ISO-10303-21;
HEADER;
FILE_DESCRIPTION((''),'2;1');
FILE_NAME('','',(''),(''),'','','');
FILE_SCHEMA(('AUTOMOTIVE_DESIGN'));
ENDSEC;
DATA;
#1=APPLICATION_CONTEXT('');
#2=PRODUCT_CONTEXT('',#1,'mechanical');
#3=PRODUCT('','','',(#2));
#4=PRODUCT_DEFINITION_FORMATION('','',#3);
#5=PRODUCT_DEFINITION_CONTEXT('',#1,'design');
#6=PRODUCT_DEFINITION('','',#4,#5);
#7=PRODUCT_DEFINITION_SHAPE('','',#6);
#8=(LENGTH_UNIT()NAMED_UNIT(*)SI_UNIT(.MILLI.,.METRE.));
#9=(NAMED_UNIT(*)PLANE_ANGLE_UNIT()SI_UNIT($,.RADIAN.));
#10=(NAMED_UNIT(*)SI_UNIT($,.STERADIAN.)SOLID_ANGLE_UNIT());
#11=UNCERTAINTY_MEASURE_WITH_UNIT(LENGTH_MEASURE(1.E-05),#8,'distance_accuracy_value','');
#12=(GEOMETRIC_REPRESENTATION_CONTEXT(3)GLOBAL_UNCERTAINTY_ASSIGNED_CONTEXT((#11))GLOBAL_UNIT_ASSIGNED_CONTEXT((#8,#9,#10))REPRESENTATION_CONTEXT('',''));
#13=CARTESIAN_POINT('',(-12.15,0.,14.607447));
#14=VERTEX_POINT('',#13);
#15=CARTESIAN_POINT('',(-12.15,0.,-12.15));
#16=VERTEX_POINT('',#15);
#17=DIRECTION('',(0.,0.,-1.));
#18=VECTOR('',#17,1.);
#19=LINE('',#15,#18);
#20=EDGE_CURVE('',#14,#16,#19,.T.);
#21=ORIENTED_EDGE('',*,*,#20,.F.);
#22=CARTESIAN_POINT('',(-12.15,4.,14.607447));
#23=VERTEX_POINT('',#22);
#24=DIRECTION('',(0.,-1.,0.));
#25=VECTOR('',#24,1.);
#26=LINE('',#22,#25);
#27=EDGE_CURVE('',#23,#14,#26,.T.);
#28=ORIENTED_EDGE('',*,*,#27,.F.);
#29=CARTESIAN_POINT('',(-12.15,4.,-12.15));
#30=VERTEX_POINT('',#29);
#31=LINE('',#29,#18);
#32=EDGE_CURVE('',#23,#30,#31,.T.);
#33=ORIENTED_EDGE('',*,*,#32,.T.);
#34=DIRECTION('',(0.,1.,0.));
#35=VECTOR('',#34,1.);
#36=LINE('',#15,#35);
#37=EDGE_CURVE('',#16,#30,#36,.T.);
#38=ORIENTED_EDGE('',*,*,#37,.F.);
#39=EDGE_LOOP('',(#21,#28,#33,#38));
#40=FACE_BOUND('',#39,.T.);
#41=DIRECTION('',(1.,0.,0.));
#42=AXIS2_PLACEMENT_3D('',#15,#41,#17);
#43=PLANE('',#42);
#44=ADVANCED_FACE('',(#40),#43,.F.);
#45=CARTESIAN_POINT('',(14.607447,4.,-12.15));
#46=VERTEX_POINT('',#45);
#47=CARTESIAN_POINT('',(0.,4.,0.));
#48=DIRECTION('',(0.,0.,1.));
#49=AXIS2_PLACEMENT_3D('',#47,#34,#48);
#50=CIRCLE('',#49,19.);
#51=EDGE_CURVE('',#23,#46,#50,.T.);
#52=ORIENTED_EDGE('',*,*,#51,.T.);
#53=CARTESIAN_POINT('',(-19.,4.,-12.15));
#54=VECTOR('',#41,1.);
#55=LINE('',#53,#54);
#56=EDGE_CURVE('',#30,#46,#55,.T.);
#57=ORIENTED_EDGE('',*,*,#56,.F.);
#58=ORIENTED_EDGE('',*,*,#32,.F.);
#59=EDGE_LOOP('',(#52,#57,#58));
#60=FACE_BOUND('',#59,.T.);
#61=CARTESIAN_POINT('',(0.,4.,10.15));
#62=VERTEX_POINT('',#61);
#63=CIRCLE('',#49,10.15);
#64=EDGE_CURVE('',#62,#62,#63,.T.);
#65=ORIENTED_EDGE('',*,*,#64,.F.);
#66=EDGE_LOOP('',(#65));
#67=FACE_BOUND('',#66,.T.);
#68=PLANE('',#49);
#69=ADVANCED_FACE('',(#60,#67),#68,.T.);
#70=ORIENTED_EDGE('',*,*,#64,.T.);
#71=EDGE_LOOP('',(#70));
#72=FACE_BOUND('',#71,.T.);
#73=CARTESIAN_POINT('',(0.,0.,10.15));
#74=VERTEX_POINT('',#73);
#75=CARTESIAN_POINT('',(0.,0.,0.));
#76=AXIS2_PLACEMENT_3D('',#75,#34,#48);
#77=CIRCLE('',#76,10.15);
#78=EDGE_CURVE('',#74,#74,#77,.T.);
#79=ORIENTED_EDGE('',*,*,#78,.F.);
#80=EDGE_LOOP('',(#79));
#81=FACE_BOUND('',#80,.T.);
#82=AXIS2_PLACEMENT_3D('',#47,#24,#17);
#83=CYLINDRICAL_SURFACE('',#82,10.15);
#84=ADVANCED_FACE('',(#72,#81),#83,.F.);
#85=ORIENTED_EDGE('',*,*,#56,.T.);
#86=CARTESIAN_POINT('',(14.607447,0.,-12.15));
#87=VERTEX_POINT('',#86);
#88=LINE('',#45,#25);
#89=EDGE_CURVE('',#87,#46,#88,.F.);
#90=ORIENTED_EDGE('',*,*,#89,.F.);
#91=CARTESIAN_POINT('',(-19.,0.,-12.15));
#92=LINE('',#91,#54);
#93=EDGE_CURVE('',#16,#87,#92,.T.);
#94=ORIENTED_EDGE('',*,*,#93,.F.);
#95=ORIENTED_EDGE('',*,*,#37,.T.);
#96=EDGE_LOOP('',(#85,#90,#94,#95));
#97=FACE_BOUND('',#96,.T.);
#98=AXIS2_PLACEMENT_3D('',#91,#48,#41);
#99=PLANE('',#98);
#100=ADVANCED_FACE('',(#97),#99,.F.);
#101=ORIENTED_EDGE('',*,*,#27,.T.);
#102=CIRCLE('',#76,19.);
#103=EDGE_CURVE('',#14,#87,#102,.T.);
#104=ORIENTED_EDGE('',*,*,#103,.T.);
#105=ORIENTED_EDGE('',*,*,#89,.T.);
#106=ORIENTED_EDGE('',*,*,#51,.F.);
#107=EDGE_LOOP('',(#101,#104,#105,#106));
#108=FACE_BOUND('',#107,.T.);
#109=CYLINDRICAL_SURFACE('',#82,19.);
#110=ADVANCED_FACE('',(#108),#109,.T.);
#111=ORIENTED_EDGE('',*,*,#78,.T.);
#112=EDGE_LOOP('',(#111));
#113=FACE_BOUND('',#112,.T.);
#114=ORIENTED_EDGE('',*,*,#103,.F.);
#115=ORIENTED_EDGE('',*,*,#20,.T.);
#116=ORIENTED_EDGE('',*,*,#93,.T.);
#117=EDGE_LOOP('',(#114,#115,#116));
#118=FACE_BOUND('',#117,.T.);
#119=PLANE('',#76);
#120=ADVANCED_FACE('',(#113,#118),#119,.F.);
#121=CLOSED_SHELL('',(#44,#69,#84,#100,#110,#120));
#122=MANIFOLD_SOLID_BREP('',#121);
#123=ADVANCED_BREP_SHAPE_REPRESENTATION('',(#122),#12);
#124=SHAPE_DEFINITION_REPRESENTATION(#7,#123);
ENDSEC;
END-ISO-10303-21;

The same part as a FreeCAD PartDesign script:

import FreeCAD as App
import Part
import Sketcher

V = App.Vector


def add_polygon(sketch, points):
    """Adds a closed chain of lines whose ends are joined by coincident constraints."""
    first, n = sketch.GeometryCount, len(points)
    for a, b in zip(points, points[1:] + points[:1]):
        sketch.addGeometry(Part.LineSegment(App.Vector(*a, 0), App.Vector(*b, 0)), False)
    for i in range(n):
        sketch.addConstraint(Sketcher.Constraint("Coincident", first + i, 2, first + (i + 1) % n, 1))

doc = App.newDocument("Part")
params = doc.addObject("Spreadsheet::Sheet", "Params")
for row, (alias, value) in enumerate([
    ("sketch1_diameter", "38 mm"),
    ("sketch1_diameter2", "20.3 mm"),
    ("pad1_length", "4 mm"),
    ("sketch2_width", "38 mm"),
    ("sketch2_height", "10 mm"),
    ("sketch3_width", "10 mm"),
    ("sketch3_height", "31.15 mm"),
], start=1):
    params.set(f"A{row}", alias)
    params.set(f"B{row}", "=" + value)
    params.setAlias(f"B{row}", alias)

body = doc.addObject("PartDesign::Body", "Body")

# Sketch on XZ plane
sketch1 = body.newObject("Sketcher::SketchObject", "Sketch")
sketch1.AttachmentSupport = (doc.getObject("XZ_Plane"), [""])
sketch1.MapMode = "FlatFace"
sketch1.addGeometry(Part.Circle(V(0, 0, 0), V(0, 0, 1), 19), False)
sketch1.addGeometry(Part.Circle(V(0, 0, 0), V(0, 0, 1), 10.15), False)
sketch1.addConstraint(Sketcher.Constraint("Coincident", 0, 3, -1, 1))
sketch1.addConstraint(Sketcher.Constraint("Coincident", 1, 3, -1, 1))
sketch1.addConstraint(Sketcher.Constraint("Diameter", 0, 38.0))
sketch1.addConstraint(Sketcher.Constraint("Diameter", 1, 20.3))
sketch1.setExpression("Constraints[2]", "Params.sketch1_diameter")
sketch1.setExpression("Constraints[3]", "Params.sketch1_diameter2")
pad1 = body.newObject("PartDesign::Pad", "Pad")
pad1.Profile = sketch1
pad1.setExpression("Length", "Params.pad1_length")
pad1.Reversed = True

# Sketch on XZ plane
sketch2 = body.newObject("Sketcher::SketchObject", "Sketch001")
sketch2.AttachmentSupport = (doc.getObject("XZ_Plane"), [""])
sketch2.MapMode = "FlatFace"
sketch2.AttachmentOffset = App.Placement(V(0, 0, -4), App.Rotation())
add_polygon(sketch2, [(-19, -22.15), (-19, -12.15), (19, -12.15), (19, -22.15)])  # lines 0-3
sketch2.addConstraint(Sketcher.Constraint("Vertical", 0))
sketch2.addConstraint(Sketcher.Constraint("Horizontal", 1))
sketch2.addConstraint(Sketcher.Constraint("Vertical", 2))
sketch2.addConstraint(Sketcher.Constraint("Horizontal", 3))
sketch2.addConstraint(Sketcher.Constraint("DistanceX", 1, 1, 1, 2, 38.0))
sketch2.addConstraint(Sketcher.Constraint("DistanceY", 0, 1, 0, 2, 10.0))
sketch2.addConstraint(Sketcher.Constraint("DistanceX", 0, 2, -1, 1, 19.0))
sketch2.addConstraint(Sketcher.Constraint("DistanceY", 0, 2, -1, 1, 12.15))
sketch2.setExpression("Constraints[8]", "Params.sketch2_width")
sketch2.setExpression("Constraints[9]", "Params.sketch2_height")
pocket1 = body.newObject("PartDesign::Pocket", "Pocket")
pocket1.Profile = sketch2
pocket1.Type = "ThroughAll"
pocket1.Reversed = True

# Sketch on XZ plane
sketch3 = body.newObject("Sketcher::SketchObject", "Sketch002")
sketch3.AttachmentSupport = (doc.getObject("XZ_Plane"), [""])
sketch3.MapMode = "FlatFace"
sketch3.AttachmentOffset = App.Placement(V(0, 0, -4), App.Rotation())
add_polygon(sketch3, [(-22.15, -12.15), (-22.15, 19), (-12.15, 19), (-12.15, -12.15)])  # lines 0-3
sketch3.addConstraint(Sketcher.Constraint("Vertical", 0))
sketch3.addConstraint(Sketcher.Constraint("Horizontal", 1))
sketch3.addConstraint(Sketcher.Constraint("Vertical", 2))
sketch3.addConstraint(Sketcher.Constraint("Horizontal", 3))
sketch3.addConstraint(Sketcher.Constraint("DistanceX", 1, 1, 1, 2, 10.0))
sketch3.addConstraint(Sketcher.Constraint("DistanceY", -1, 1, 0, 2, 19.0))
sketch3.addConstraint(Sketcher.Constraint("DistanceY", 0, 1, 0, 2, 31.15))
sketch3.addConstraint(Sketcher.Constraint("DistanceX", 0, 2, -1, 1, 22.15))
sketch3.setExpression("Constraints[8]", "Params.sketch3_width")
sketch3.setExpression("Constraints[10]", "Params.sketch3_height")
pocket2 = body.newObject("PartDesign::Pocket", "Pocket001")
pocket2.Profile = sketch3
pocket2.Type = "ThroughAll"
pocket2.Reversed = True

doc.recompute()
